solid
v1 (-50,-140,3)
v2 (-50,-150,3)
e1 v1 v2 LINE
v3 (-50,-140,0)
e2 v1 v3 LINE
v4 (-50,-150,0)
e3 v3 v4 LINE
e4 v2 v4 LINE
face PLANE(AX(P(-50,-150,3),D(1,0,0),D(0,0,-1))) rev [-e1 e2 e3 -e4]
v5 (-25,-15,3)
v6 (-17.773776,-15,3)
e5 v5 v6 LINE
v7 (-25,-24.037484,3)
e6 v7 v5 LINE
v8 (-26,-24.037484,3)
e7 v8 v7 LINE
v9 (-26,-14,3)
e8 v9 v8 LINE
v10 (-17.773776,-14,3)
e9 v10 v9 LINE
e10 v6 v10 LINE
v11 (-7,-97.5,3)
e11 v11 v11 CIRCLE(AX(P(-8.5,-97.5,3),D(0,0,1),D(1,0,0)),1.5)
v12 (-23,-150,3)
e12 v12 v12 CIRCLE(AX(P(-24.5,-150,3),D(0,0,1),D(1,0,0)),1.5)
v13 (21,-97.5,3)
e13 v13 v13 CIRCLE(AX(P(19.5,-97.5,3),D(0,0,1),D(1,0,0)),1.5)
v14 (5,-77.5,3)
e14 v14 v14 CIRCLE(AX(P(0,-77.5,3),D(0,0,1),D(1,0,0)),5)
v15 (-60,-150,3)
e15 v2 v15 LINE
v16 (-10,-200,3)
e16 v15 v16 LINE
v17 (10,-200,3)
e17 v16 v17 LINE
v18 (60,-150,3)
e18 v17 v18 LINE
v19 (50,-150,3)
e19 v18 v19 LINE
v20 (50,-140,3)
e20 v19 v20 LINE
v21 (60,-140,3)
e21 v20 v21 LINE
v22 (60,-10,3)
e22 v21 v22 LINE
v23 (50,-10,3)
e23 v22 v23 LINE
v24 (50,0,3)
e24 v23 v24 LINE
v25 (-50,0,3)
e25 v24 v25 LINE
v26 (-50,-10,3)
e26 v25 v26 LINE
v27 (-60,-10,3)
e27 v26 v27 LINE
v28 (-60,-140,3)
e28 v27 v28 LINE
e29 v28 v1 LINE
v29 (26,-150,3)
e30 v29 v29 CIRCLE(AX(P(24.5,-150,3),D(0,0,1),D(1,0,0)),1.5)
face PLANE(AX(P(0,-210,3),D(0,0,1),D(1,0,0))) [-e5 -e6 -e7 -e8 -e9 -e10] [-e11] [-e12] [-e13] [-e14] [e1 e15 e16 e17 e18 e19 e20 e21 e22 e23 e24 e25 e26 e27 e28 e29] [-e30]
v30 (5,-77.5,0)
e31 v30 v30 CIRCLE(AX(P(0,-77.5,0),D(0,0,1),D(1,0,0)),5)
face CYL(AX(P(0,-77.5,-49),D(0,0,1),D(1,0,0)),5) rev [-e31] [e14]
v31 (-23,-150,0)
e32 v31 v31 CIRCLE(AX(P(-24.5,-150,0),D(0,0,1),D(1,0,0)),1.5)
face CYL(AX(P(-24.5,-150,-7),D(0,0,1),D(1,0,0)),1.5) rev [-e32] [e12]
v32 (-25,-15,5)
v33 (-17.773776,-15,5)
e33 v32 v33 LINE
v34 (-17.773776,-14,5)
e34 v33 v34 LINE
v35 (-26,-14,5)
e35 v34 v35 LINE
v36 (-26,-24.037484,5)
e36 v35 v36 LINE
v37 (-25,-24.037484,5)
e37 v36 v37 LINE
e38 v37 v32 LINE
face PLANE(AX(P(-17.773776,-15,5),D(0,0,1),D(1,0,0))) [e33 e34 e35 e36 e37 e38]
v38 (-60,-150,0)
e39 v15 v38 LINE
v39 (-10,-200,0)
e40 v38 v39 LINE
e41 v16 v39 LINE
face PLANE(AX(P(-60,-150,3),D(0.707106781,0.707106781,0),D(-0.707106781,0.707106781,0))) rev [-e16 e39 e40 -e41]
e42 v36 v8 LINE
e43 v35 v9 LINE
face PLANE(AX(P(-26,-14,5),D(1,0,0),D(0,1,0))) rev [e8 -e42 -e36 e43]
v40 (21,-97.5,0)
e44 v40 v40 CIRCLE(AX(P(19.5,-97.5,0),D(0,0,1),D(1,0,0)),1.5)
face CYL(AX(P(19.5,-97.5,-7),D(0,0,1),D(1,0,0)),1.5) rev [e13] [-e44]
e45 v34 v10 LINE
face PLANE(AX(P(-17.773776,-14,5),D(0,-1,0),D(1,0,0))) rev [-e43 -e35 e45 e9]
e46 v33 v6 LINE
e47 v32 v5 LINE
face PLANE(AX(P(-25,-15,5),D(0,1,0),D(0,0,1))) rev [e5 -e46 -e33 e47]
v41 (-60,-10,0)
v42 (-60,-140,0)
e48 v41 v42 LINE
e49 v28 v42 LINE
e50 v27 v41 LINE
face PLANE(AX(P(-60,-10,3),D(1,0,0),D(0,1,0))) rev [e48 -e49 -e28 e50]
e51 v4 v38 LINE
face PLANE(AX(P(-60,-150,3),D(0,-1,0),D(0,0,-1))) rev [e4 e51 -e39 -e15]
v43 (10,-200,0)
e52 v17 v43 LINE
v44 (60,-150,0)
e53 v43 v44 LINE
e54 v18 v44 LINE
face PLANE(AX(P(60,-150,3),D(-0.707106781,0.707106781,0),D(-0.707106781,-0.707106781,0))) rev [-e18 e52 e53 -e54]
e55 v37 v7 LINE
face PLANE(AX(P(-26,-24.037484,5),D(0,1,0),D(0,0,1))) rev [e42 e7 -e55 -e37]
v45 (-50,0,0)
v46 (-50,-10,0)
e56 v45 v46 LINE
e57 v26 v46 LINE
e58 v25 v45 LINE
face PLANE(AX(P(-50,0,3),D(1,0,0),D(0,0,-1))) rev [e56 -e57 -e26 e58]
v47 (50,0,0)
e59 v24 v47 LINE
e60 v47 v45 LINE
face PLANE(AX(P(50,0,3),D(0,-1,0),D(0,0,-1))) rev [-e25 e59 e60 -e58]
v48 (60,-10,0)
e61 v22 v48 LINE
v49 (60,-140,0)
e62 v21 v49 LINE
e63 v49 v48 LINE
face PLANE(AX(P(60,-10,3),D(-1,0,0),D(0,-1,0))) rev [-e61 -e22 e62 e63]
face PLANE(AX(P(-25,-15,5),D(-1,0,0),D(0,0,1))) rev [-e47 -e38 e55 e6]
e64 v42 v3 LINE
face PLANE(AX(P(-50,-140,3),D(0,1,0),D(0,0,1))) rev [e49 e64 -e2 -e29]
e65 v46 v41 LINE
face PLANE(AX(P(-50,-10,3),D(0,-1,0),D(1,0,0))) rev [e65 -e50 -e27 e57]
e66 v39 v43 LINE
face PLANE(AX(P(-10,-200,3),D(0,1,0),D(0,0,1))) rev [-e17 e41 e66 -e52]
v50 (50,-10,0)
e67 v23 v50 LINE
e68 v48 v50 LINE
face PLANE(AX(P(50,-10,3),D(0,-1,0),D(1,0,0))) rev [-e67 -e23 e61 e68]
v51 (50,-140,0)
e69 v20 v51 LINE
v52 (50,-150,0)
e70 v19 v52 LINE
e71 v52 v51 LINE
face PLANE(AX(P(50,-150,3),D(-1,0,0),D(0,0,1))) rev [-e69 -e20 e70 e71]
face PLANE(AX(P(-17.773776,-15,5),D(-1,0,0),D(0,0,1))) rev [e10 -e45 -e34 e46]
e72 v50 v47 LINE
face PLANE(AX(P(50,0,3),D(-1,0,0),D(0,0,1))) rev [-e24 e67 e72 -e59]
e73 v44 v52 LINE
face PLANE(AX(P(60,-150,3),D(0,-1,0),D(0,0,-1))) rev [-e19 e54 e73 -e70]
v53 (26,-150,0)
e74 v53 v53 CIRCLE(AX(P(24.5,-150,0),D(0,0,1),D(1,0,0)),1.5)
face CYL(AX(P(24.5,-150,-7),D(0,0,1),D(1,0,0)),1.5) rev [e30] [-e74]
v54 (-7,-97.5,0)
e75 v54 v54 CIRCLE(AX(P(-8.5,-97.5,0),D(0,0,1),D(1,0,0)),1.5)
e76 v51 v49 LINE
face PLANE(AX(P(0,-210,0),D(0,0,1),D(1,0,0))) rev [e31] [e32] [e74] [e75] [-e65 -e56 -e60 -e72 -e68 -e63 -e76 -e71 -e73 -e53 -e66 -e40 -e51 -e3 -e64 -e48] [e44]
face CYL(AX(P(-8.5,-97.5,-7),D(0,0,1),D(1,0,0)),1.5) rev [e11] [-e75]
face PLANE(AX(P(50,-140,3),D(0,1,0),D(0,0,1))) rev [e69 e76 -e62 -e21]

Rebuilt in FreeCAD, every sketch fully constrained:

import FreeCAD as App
import Part
import Sketcher

V = App.Vector
Q = App.Units.Quantity

doc = App.newDocument("Part")
params = doc.addObject("Spreadsheet::Sheet", "Params")
for row, (alias, value) in enumerate([
    ("sketch1_width", "100 mm"),
    ("sketch1_width2", "10 mm"),
    ("sketch1_width3", "20 mm"),
    ("sketch1_height", "130 mm"),
    ("pad1_length", "3 mm"),
    ("sketch2_diameter", "3 mm"),
    ("pocket1_length", "10 mm"),
    ("sketch3_width", "1 mm"),
    ("pad2_length", "2 mm"),
    ("sketch4_diameter", "10 mm"),
    ("pocket2_length", "52 mm"),
], start=1):
    params.set(f"A{row}", alias)
    params.set(f"B{row}", "=" + value)
    params.setAlias(f"B{row}", alias)

body = doc.addObject("PartDesign::Body", "Body")

# Sketch on XY plane
sketch1 = doc.addObject("Sketcher::SketchObject", "Sketch")
body.addObject(sketch1)
sketch1.AttachmentSupport = (doc.XY_Plane, [""])
sketch1.MapMode = "FlatFace"
sketch1.addGeometry([
    Part.LineSegment(V(50, 0, 0), V(-50, 0, 0)),  # 0
    Part.LineSegment(V(-50, 0, 0), V(-50, -10, 0)),  # 1
    Part.LineSegment(V(-50, -10, 0), V(-60, -10, 0)),  # 2
    Part.LineSegment(V(-60, -10, 0), V(-60, -140, 0)),  # 3
    Part.LineSegment(V(-60, -140, 0), V(-50, -140, 0)),  # 4
    Part.LineSegment(V(-50, -140, 0), V(-50, -150, 0)),  # 5
    Part.LineSegment(V(-50, -150, 0), V(-60, -150, 0)),  # 6
    Part.LineSegment(V(-60, -150, 0), V(-10, -200, 0)),  # 7
    Part.LineSegment(V(-10, -200, 0), V(10, -200, 0)),  # 8
    Part.LineSegment(V(10, -200, 0), V(60, -150, 0)),  # 9
    Part.LineSegment(V(60, -150, 0), V(50, -150, 0)),  # 10
    Part.LineSegment(V(50, -150, 0), V(50, -140, 0)),  # 11
    Part.LineSegment(V(50, -140, 0), V(60, -140, 0)),  # 12
    Part.LineSegment(V(60, -140, 0), V(60, -10, 0)),  # 13
    Part.LineSegment(V(60, -10, 0), V(50, -10, 0)),  # 14
    Part.LineSegment(V(50, -10, 0), V(50, 0, 0)),  # 15
], False)
sketch1.addConstraint([
    Sketcher.Constraint("Coincident", 0, 2, 1, 1),
    Sketcher.Constraint("Coincident", 1, 2, 2, 1),
    Sketcher.Constraint("Coincident", 2, 2, 3, 1),
    Sketcher.Constraint("Coincident", 3, 2, 4, 1),
    Sketcher.Constraint("Coincident", 4, 2, 5, 1),
    Sketcher.Constraint("Coincident", 5, 2, 6, 1),
    Sketcher.Constraint("Coincident", 6, 2, 7, 1),
    Sketcher.Constraint("Coincident", 7, 2, 8, 1),
    Sketcher.Constraint("Coincident", 8, 2, 9, 1),
    Sketcher.Constraint("Coincident", 9, 2, 10, 1),
    Sketcher.Constraint("Coincident", 10, 2, 11, 1),
    Sketcher.Constraint("Coincident", 11, 2, 12, 1),
    Sketcher.Constraint("Coincident", 12, 2, 13, 1),
    Sketcher.Constraint("Coincident", 13, 2, 14, 1),
    Sketcher.Constraint("Coincident", 14, 2, 15, 1),
    Sketcher.Constraint("Coincident", 15, 2, 0, 1),
    Sketcher.Constraint("Horizontal", 0),
    Sketcher.Constraint("Vertical", 1),
    Sketcher.Constraint("Horizontal", 2),
    Sketcher.Constraint("Vertical", 3),
    Sketcher.Constraint("Horizontal", 4),
    Sketcher.Constraint("Vertical", 5),
    Sketcher.Constraint("Horizontal", 6),
    Sketcher.Constraint("Horizontal", 8),
    Sketcher.Constraint("Horizontal", 10),
    Sketcher.Constraint("Vertical", 11),
    Sketcher.Constraint("Horizontal", 12),
    Sketcher.Constraint("Vertical", 13),
    Sketcher.Constraint("Horizontal", 14),
    Sketcher.Constraint("Vertical", 15),
    Sketcher.Constraint("Symmetric", 0, 2, 15, 2, -1, 1),
    Sketcher.Constraint("Symmetric", 6, 2, 9, 2, -2),
    Sketcher.Constraint("Symmetric", 4, 2, 11, 2, -2),
    Sketcher.Constraint("Symmetric", 2, 2, 13, 2, -2),
    Sketcher.Constraint("Perpendicular", 7, 9),
    Sketcher.Constraint("Vertical", 1, 2, 4, 2),
    Sketcher.Constraint("Vertical", 3, 2, 6, 2),
    Sketcher.Constraint("Equal", 14, 1),
    Sketcher.Constraint("Equal", 1, 5),
    Sketcher.Constraint("Equal", 7, 9),
    Sketcher.Constraint("DistanceX", 0, 2, 0, 1, Q("100 mm")),
    Sketcher.Constraint("DistanceX", 2, 2, 2, 1, Q("10 mm")),
    Sketcher.Constraint("DistanceX", 8, 1, 8, 2, Q("20 mm")),
    Sketcher.Constraint("DistanceY", 3, 2, 3, 1, Q("130 mm")),
])
sketch1.setExpression("Constraints[40]", "Params.sketch1_width")
sketch1.setExpression("Constraints[41]", "Params.sketch1_width2")
sketch1.setExpression("Constraints[42]", "Params.sketch1_width3")
sketch1.setExpression("Constraints[43]", "Params.sketch1_height")
pad1 = doc.addObject("PartDesign::Pad", "Pad")
body.addObject(pad1)
pad1.Profile = sketch1
pad1.setExpression("Length", "Params.pad1_length")

# Sketch on XY plane
sketch2 = doc.addObject("Sketcher::SketchObject", "Sketch001")
body.addObject(sketch2)
sketch2.AttachmentSupport = (doc.XY_Plane, [""])
sketch2.MapMode = "FlatFace"
sketch2.AttachmentOffset = App.Placement(V(0, 0, 3), App.Rotation())
sketch2.addGeometry([
    Part.Circle(V(-24.5, -150, 0), V(0, 0, 1), 1.5),
    Part.Circle(V(-8.5, -97.5, 0), V(0, 0, 1), 1.5),
    Part.Circle(V(19.5, -97.5, 0), V(0, 0, 1), 1.5),
    Part.Circle(V(24.5, -150, 0), V(0, 0, 1), 1.5),
], False)
sketch2.addConstraint([
    Sketcher.Constraint("Equal", 0, 1),
    Sketcher.Constraint("Equal", 1, 2),
    Sketcher.Constraint("Equal", 2, 3),
    Sketcher.Constraint("Symmetric", 0, 3, 3, 3, -2),
    Sketcher.Constraint("Horizontal", 1, 3, 2, 3),
    Sketcher.Constraint("Diameter", 0, Q("3 mm")),
    Sketcher.Constraint("DistanceY", 0, 3, -1, 1, Q("150 mm")),
    Sketcher.Constraint("DistanceX", 0, 3, 1, 3, Q("16 mm")),
    Sketcher.Constraint("DistanceX", 1, 3, 2, 3, Q("28 mm")),
    Sketcher.Constraint("DistanceX", 0, 3, 3, 3, Q("49 mm")),
    Sketcher.Constraint("DistanceY", 1, 3, -1, 1, Q("97.5 mm")),
])
sketch2.setExpression("Constraints[5]", "Params.sketch2_diameter")
pocket1 = doc.addObject("PartDesign::Pocket", "Pocket")
body.addObject(pocket1)
pocket1.Profile = sketch2
pocket1.setExpression("Length", "Params.pocket1_length")

# Sketch on XY plane
sketch3 = doc.addObject("Sketcher::SketchObject", "Sketch002")
body.addObject(sketch3)
sketch3.AttachmentSupport = (doc.XY_Plane, [""])
sketch3.MapMode = "FlatFace"
sketch3.AttachmentOffset = App.Placement(V(0, 0, 3), App.Rotation())
sketch3.addGeometry([
    Part.LineSegment(V(-25, -24, 0), V(-25, -15, 0)),  # 0
    Part.LineSegment(V(-25, -15, 0), V(-17.8, -15, 0)),  # 1
    Part.LineSegment(V(-17.8, -15, 0), V(-17.8, -14, 0)),  # 2
    Part.LineSegment(V(-17.8, -14, 0), V(-26, -14, 0)),  # 3
    Part.LineSegment(V(-26, -14, 0), V(-26, -24, 0)),  # 4
    Part.LineSegment(V(-26, -24, 0), V(-25, -24, 0)),  # 5
], False)
sketch3.addConstraint([
    Sketcher.Constraint("Coincident", 0, 2, 1, 1),
    Sketcher.Constraint("Coincident", 1, 2, 2, 1),
    Sketcher.Constraint("Coincident", 2, 2, 3, 1),
    Sketcher.Constraint("Coincident", 3, 2, 4, 1),
    Sketcher.Constraint("Coincident", 4, 2, 5, 1),
    Sketcher.Constraint("Coincident", 5, 2, 0, 1),
    Sketcher.Constraint("Vertical", 0),
    Sketcher.Constraint("Horizontal", 1),
    Sketcher.Constraint("Vertical", 2),
    Sketcher.Constraint("Horizontal", 3),
    Sketcher.Constraint("Vertical", 4),
    Sketcher.Constraint("Horizontal", 5),
    Sketcher.Constraint("Equal", 5, 2),
    Sketcher.Constraint("DistanceX", 5, 1, 5, 2, Q("1 mm")),
    Sketcher.Constraint("DistanceX", 0, 2, -1, 1, Q("25 mm")),
    Sketcher.Constraint("DistanceY", 0, 2, -1, 1, Q("15 mm")),
    Sketcher.Constraint("DistanceX", 1, 1, 1, 2, Q("7.226224 mm")),
    Sketcher.Constraint("DistanceY", 0, 1, 0, 2, Q("9.037484 mm")),
])
sketch3.setExpression("Constraints[13]", "Params.sketch3_width")
pad2 = doc.addObject("PartDesign::Pad", "Pad001")
body.addObject(pad2)
pad2.Profile = sketch3
pad2.setExpression("Length", "Params.pad2_length")

# Sketch on XY plane
sketch4 = doc.addObject("Sketcher::SketchObject", "Sketch003")
body.addObject(sketch4)
sketch4.AttachmentSupport = (doc.XY_Plane, [""])
sketch4.MapMode = "FlatFace"
sketch4.AttachmentOffset = App.Placement(V(0, 0, 3), App.Rotation())
sketch4.addGeometry(Part.Circle(V(0, -78, 0), V(0, 0, 1), 5), False)
sketch4.addConstraint([
    Sketcher.Constraint("PointOnObject", 0, 3, -2),
    Sketcher.Constraint("Diameter", 0, Q("10 mm")),
    Sketcher.Constraint("DistanceY", 0, 3, -1, 1, Q("77.5 mm")),
])
sketch4.setExpression("Constraints[1]", "Params.sketch4_diameter")
pocket2 = doc.addObject("PartDesign::Pocket", "Pocket001")
body.addObject(pocket2)
pocket2.Profile = sketch4
pocket2.setExpression("Length", "Params.pocket2_length")

doc.recompute()
